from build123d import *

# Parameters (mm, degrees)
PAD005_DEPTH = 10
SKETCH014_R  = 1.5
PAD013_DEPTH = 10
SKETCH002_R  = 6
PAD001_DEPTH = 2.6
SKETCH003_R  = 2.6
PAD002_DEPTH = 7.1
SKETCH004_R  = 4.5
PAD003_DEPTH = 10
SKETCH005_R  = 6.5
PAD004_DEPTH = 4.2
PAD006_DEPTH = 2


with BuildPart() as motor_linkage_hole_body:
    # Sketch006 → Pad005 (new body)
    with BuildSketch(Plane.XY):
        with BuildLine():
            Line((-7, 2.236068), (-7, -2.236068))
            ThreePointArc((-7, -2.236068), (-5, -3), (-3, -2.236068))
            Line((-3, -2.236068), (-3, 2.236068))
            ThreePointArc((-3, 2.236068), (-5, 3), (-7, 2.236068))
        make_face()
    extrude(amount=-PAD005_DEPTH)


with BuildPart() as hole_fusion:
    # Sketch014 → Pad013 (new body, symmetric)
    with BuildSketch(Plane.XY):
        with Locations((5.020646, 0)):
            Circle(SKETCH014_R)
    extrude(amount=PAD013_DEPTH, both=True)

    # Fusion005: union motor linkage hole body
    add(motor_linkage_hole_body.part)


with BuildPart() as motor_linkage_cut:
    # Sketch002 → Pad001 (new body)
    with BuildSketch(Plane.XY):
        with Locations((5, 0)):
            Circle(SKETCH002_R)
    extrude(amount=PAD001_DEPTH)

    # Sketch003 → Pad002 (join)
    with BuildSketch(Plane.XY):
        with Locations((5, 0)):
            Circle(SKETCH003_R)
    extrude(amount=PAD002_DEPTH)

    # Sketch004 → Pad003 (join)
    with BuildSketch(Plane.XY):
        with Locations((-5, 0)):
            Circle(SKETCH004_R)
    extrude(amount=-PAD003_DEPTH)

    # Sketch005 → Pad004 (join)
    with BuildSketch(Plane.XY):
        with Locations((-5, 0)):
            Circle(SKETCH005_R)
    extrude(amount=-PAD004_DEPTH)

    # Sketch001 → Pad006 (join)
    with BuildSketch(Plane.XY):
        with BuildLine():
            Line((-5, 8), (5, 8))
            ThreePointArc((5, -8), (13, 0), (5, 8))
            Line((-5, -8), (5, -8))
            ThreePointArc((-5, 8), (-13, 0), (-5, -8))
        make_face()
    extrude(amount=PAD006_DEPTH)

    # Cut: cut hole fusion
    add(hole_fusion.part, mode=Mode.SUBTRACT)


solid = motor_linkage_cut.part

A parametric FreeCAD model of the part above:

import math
import FreeCAD as App
import Part
import Sketcher
from FreeCAD import Vector

doc = App.newDocument("Part")
body = doc.addObject("PartDesign::Body", "Body")

# Sketch on XY plane
sketch1 = body.newObject("Sketcher::SketchObject", "Sketch")
sketch1.AttachmentSupport = (doc.getObject("XY_Plane"), [""])
sketch1.MapMode = "FlatFace"
sketch1.addGeometry(Part.LineSegment(Vector(-7, 2.2, 0), Vector(-7, -2.2, 0)), False)
sketch1.addGeometry(Part.ArcOfCircle(Part.Circle(Vector(-5, 0, 0), Vector(0, 0, 1), 3), math.radians(-132), math.radians(-48)), False)
sketch1.addGeometry(Part.LineSegment(Vector(-3, -2.2, 0), Vector(-3, 2.2, 0)), False)
sketch1.addGeometry(Part.ArcOfCircle(Part.Circle(Vector(-5, 0, 0), Vector(0, 0, 1), 3), math.radians(48), math.radians(132)), False)
sketch1.addConstraint(Sketcher.Constraint("Coincident", 0, 2, 1, 1))
sketch1.addConstraint(Sketcher.Constraint("Coincident", 1, 2, 2, 1))
sketch1.addConstraint(Sketcher.Constraint("Coincident", 2, 2, 3, 1))
sketch1.addConstraint(Sketcher.Constraint("Coincident", 3, 2, 0, 1))
sketch1.addConstraint(Sketcher.Constraint("Vertical", 0))
sketch1.addConstraint(Sketcher.Constraint("Vertical", 2))
sketch1.addConstraint(Sketcher.Constraint("Coincident", 3, 3, 1, 3))
sketch1.addConstraint(Sketcher.Constraint("Equal", 1, 3))
sketch1.addConstraint(Sketcher.Constraint("PointOnObject", 1, 3, -1))
sketch1.addConstraint(Sketcher.Constraint("Horizontal", 0, 2, 1, 2))
sketch1.addConstraint(Sketcher.Constraint("Radius", 1, 3.0))
sketch1.addConstraint(Sketcher.Constraint("DistanceX", 1, 3, -1, 1, 5.0))
sketch1.addConstraint(Sketcher.Constraint("DistanceX", 0, 2, -1, 1, 7.0))
pad1 = body.newObject("PartDesign::Pad", "Pad")
pad1.Profile = sketch1
pad1.Length = 10
pad1.Reversed = True
body2 = doc.addObject("PartDesign::Body", "Body001")
body2.AllowCompound = True

# Sketch on XY plane
sketch2 = body2.newObject("Sketcher::SketchObject", "Sketch001")
sketch2.AttachmentSupport = (doc.getObject("XY_Plane001"), [""])
sketch2.MapMode = "FlatFace"
sketch2.addGeometry(Part.Circle(Vector(5, 0, 0), Vector(0, 0, 1), 1.5), False)
sketch2.addConstraint(Sketcher.Constraint("PointOnObject", 0, 3, -1))
sketch2.addConstraint(Sketcher.Constraint("Diameter", 0, 3.0))
sketch2.addConstraint(Sketcher.Constraint("DistanceX", -1, 1, 0, 3, 5.020646))
pad2 = body2.newObject("PartDesign::Pad", "Pad001")
pad2.Profile = sketch2
pad2.Length = 20
pad2.Midplane = True
doc.recompute()

boolean = body2.newObject("PartDesign::Boolean", "Boolean")
boolean.Type = "Fuse"
boolean.addObjects([body])
body3 = doc.addObject("PartDesign::Body", "Body002")

# Sketch on XY plane
sketch3 = body3.newObject("Sketcher::SketchObject", "Sketch002")
sketch3.AttachmentSupport = (doc.getObject("XY_Plane002"), [""])
sketch3.MapMode = "FlatFace"
sketch3.addGeometry(Part.Circle(Vector(5, 0, 0), Vector(0, 0, 1), 6), False)
sketch3.addConstraint(Sketcher.Constraint("PointOnObject", 0, 3, -1))
sketch3.addConstraint(Sketcher.Constraint("Diameter", 0, 12.0))
sketch3.addConstraint(Sketcher.Constraint("DistanceX", -1, 1, 0, 3, 5.0))
pad3 = body3.newObject("PartDesign::Pad", "Pad002")
pad3.Profile = sketch3
pad3.Length = 2.6

# Sketch on XY plane
sketch4 = body3.newObject("Sketcher::SketchObject", "Sketch003")
sketch4.AttachmentSupport = (doc.getObject("XY_Plane002"), [""])
sketch4.MapMode = "FlatFace"
sketch4.addGeometry(Part.Circle(Vector(5, 0, 0), Vector(0, 0, 1), 2.6), False)
sketch4.addConstraint(Sketcher.Constraint("PointOnObject", 0, 3, -1))
sketch4.addConstraint(Sketcher.Constraint("Diameter", 0, 5.2))
sketch4.addConstraint(Sketcher.Constraint("DistanceX", -1, 1, 0, 3, 5.0))
pad4 = body3.newObject("PartDesign::Pad", "Pad003")
pad4.Profile = sketch4
pad4.Length = 7.1

# Sketch on XY plane
sketch5 = body3.newObject("Sketcher::SketchObject", "Sketch004")
sketch5.AttachmentSupport = (doc.getObject("XY_Plane002"), [""])
sketch5.MapMode = "FlatFace"
sketch5.addGeometry(Part.Circle(Vector(-5, 0, 0), Vector(0, 0, 1), 4.5), False)
sketch5.addConstraint(Sketcher.Constraint("PointOnObject", 0, 3, -1))
sketch5.addConstraint(Sketcher.Constraint("Diameter", 0, 9.0))
sketch5.addConstraint(Sketcher.Constraint("DistanceX", 0, 3, -1, 1, 5.0))
pad5 = body3.newObject("PartDesign::Pad", "Pad004")
pad5.Profile = sketch5
pad5.Length = 10
pad5.Reversed = True

# Sketch on XY plane
sketch6 = body3.newObject("Sketcher::SketchObject", "Sketch005")
sketch6.AttachmentSupport = (doc.getObject("XY_Plane002"), [""])
sketch6.MapMode = "FlatFace"
sketch6.addGeometry(Part.Circle(Vector(-5, 0, 0), Vector(0, 0, 1), 6), False)
sketch6.addConstraint(Sketcher.Constraint("PointOnObject", 0, 3, -1))
sketch6.addConstraint(Sketcher.Constraint("Diameter", 0, 13.0))
sketch6.addConstraint(Sketcher.Constraint("DistanceX", 0, 3, -1, 1, 5.0))
pad6 = body3.newObject("PartDesign::Pad", "Pad005")
pad6.Profile = sketch6
pad6.Length = 4.2
pad6.Reversed = True

# Sketch on XY plane
sketch7 = body3.newObject("Sketcher::SketchObject", "Sketch006")
sketch7.AttachmentSupport = (doc.getObject("XY_Plane002"), [""])
sketch7.MapMode = "FlatFace"
sketch7.addGeometry(Part.LineSegment(Vector(5, 8, 0), Vector(-5, 8, 0)), False)
sketch7.addGeometry(Part.ArcOfCircle(Part.Circle(Vector(-5, 0, 0), Vector(0, 0, 1), 8), math.radians(90), math.radians(270)), False)
sketch7.addGeometry(Part.LineSegment(Vector(-5, -8, 0), Vector(5, -8, 0)), False)
sketch7.addGeometry(Part.ArcOfCircle(Part.Circle(Vector(5, 0, 0), Vector(0, 0, 1), 8), math.radians(-90), math.radians(90)), False)
sketch7.addConstraint(Sketcher.Constraint("Tangent", 0, 2, 1, 1))
sketch7.addConstraint(Sketcher.Constraint("Tangent", 1, 2, 2, 1))
sketch7.addConstraint(Sketcher.Constraint("Tangent", 2, 2, 3, 1))
sketch7.addConstraint(Sketcher.Constraint("Tangent", 3, 2, 0, 1))
sketch7.addConstraint(Sketcher.Constraint("Horizontal", 0))
sketch7.addConstraint(Sketcher.Constraint("Horizontal", 2))
sketch7.addConstraint(Sketcher.Constraint("Symmetric", 1, 3, 3, 3, -1, 1))
sketch7.addConstraint(Sketcher.Constraint("Radius", 1, 8.0))
sketch7.addConstraint(Sketcher.Constraint("DistanceX", 0, 2, 0, 1, 10.0))
pad7 = body3.newObject("PartDesign::Pad", "Pad006")
pad7.Profile = sketch7
pad7.Length = 2
doc.recompute()

boolean2 = body3.newObject("PartDesign::Boolean", "Boolean001")
boolean2.Type = "Cut"
boolean2.addObjects([body2])

doc.recompute()
